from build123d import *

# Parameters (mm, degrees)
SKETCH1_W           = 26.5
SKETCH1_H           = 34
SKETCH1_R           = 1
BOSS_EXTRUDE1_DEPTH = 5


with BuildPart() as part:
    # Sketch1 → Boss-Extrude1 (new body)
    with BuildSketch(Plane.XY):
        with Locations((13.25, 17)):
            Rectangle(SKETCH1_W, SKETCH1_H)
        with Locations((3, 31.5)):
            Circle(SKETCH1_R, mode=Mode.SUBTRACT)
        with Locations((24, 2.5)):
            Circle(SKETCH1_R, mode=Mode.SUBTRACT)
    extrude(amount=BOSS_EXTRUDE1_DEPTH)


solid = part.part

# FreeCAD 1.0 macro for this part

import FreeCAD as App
import Part
import Sketcher
Q = App.Units.Quantity


def add_polygon(sketch, points):
    """Adds a closed chain of lines whose ends are joined by coincident constraints."""
    first, n = sketch.GeometryCount, len(points)
    for a, b in zip(points, points[1:] + points[:1]):
        sketch.addGeometry(Part.LineSegment(App.Vector(*a, 0), App.Vector(*b, 0)), False)
    for i in range(n):
        sketch.addConstraint(Sketcher.Constraint("Coincident", first + i, 2, first + (i + 1) % n, 1))

doc = App.newDocument("Part")
body = doc.addObject("PartDesign::Body", "Body")

# Sketch on XY plane
sketch1 = doc.addObject("Sketcher::SketchObject", "Sketch")
body.addObject(sketch1)
sketch1.AttachmentSupport = (doc.XY_Plane, [""])
sketch1.MapMode = "FlatFace"
add_polygon(sketch1, [(0, 34), (0, 0), (26.5, 0), (26.5, 34)])  # lines 0-3
sketch1.addGeometry(Part.Circle(App.Vector(24, 2.5, 0), App.Vector(0, 0, 1), 1), False)  # 4
sketch1.addGeometry(Part.Circle(App.Vector(3, 31.5, 0), App.Vector(0, 0, 1), 1), False)  # 5
sketch1.addConstraint(Sketcher.Constraint("Vertical", 0))
sketch1.addConstraint(Sketcher.Constraint("Horizontal", 1))
sketch1.addConstraint(Sketcher.Constraint("Vertical", 2))
sketch1.addConstraint(Sketcher.Constraint("Horizontal", 3))
sketch1.addConstraint(Sketcher.Constraint("Coincident", 0, 2, -1, 1))
sketch1.addConstraint(Sketcher.Constraint("Equal", 4, 5))
sketch1.addConstraint(Sketcher.Constraint("Diameter", 4, Q("2 mm")))
sketch1.addConstraint(Sketcher.Constraint("DistanceY", 0, 2, 0, 1, Q("34 mm")))
sketch1.addConstraint(Sketcher.Constraint("DistanceX", 1, 1, 1, 2, Q("26.5 mm")))
sketch1.addConstraint(Sketcher.Constraint("DistanceX", -1, 1, 4, 3, Q("24 mm")))
sketch1.addConstraint(Sketcher.Constraint("DistanceX", -1, 1, 5, 3, Q("3 mm")))
sketch1.addConstraint(Sketcher.Constraint("DistanceY", 4, 3, 5, 3, Q("29 mm")))
sketch1.addConstraint(Sketcher.Constraint("DistanceY", -1, 1, 4, 3, Q("2.5 mm")))
pad1 = doc.addObject("PartDesign::Pad", "Pad")
body.addObject(pad1)
pad1.Profile = sketch1
pad1.Length = 5

doc.recompute()
